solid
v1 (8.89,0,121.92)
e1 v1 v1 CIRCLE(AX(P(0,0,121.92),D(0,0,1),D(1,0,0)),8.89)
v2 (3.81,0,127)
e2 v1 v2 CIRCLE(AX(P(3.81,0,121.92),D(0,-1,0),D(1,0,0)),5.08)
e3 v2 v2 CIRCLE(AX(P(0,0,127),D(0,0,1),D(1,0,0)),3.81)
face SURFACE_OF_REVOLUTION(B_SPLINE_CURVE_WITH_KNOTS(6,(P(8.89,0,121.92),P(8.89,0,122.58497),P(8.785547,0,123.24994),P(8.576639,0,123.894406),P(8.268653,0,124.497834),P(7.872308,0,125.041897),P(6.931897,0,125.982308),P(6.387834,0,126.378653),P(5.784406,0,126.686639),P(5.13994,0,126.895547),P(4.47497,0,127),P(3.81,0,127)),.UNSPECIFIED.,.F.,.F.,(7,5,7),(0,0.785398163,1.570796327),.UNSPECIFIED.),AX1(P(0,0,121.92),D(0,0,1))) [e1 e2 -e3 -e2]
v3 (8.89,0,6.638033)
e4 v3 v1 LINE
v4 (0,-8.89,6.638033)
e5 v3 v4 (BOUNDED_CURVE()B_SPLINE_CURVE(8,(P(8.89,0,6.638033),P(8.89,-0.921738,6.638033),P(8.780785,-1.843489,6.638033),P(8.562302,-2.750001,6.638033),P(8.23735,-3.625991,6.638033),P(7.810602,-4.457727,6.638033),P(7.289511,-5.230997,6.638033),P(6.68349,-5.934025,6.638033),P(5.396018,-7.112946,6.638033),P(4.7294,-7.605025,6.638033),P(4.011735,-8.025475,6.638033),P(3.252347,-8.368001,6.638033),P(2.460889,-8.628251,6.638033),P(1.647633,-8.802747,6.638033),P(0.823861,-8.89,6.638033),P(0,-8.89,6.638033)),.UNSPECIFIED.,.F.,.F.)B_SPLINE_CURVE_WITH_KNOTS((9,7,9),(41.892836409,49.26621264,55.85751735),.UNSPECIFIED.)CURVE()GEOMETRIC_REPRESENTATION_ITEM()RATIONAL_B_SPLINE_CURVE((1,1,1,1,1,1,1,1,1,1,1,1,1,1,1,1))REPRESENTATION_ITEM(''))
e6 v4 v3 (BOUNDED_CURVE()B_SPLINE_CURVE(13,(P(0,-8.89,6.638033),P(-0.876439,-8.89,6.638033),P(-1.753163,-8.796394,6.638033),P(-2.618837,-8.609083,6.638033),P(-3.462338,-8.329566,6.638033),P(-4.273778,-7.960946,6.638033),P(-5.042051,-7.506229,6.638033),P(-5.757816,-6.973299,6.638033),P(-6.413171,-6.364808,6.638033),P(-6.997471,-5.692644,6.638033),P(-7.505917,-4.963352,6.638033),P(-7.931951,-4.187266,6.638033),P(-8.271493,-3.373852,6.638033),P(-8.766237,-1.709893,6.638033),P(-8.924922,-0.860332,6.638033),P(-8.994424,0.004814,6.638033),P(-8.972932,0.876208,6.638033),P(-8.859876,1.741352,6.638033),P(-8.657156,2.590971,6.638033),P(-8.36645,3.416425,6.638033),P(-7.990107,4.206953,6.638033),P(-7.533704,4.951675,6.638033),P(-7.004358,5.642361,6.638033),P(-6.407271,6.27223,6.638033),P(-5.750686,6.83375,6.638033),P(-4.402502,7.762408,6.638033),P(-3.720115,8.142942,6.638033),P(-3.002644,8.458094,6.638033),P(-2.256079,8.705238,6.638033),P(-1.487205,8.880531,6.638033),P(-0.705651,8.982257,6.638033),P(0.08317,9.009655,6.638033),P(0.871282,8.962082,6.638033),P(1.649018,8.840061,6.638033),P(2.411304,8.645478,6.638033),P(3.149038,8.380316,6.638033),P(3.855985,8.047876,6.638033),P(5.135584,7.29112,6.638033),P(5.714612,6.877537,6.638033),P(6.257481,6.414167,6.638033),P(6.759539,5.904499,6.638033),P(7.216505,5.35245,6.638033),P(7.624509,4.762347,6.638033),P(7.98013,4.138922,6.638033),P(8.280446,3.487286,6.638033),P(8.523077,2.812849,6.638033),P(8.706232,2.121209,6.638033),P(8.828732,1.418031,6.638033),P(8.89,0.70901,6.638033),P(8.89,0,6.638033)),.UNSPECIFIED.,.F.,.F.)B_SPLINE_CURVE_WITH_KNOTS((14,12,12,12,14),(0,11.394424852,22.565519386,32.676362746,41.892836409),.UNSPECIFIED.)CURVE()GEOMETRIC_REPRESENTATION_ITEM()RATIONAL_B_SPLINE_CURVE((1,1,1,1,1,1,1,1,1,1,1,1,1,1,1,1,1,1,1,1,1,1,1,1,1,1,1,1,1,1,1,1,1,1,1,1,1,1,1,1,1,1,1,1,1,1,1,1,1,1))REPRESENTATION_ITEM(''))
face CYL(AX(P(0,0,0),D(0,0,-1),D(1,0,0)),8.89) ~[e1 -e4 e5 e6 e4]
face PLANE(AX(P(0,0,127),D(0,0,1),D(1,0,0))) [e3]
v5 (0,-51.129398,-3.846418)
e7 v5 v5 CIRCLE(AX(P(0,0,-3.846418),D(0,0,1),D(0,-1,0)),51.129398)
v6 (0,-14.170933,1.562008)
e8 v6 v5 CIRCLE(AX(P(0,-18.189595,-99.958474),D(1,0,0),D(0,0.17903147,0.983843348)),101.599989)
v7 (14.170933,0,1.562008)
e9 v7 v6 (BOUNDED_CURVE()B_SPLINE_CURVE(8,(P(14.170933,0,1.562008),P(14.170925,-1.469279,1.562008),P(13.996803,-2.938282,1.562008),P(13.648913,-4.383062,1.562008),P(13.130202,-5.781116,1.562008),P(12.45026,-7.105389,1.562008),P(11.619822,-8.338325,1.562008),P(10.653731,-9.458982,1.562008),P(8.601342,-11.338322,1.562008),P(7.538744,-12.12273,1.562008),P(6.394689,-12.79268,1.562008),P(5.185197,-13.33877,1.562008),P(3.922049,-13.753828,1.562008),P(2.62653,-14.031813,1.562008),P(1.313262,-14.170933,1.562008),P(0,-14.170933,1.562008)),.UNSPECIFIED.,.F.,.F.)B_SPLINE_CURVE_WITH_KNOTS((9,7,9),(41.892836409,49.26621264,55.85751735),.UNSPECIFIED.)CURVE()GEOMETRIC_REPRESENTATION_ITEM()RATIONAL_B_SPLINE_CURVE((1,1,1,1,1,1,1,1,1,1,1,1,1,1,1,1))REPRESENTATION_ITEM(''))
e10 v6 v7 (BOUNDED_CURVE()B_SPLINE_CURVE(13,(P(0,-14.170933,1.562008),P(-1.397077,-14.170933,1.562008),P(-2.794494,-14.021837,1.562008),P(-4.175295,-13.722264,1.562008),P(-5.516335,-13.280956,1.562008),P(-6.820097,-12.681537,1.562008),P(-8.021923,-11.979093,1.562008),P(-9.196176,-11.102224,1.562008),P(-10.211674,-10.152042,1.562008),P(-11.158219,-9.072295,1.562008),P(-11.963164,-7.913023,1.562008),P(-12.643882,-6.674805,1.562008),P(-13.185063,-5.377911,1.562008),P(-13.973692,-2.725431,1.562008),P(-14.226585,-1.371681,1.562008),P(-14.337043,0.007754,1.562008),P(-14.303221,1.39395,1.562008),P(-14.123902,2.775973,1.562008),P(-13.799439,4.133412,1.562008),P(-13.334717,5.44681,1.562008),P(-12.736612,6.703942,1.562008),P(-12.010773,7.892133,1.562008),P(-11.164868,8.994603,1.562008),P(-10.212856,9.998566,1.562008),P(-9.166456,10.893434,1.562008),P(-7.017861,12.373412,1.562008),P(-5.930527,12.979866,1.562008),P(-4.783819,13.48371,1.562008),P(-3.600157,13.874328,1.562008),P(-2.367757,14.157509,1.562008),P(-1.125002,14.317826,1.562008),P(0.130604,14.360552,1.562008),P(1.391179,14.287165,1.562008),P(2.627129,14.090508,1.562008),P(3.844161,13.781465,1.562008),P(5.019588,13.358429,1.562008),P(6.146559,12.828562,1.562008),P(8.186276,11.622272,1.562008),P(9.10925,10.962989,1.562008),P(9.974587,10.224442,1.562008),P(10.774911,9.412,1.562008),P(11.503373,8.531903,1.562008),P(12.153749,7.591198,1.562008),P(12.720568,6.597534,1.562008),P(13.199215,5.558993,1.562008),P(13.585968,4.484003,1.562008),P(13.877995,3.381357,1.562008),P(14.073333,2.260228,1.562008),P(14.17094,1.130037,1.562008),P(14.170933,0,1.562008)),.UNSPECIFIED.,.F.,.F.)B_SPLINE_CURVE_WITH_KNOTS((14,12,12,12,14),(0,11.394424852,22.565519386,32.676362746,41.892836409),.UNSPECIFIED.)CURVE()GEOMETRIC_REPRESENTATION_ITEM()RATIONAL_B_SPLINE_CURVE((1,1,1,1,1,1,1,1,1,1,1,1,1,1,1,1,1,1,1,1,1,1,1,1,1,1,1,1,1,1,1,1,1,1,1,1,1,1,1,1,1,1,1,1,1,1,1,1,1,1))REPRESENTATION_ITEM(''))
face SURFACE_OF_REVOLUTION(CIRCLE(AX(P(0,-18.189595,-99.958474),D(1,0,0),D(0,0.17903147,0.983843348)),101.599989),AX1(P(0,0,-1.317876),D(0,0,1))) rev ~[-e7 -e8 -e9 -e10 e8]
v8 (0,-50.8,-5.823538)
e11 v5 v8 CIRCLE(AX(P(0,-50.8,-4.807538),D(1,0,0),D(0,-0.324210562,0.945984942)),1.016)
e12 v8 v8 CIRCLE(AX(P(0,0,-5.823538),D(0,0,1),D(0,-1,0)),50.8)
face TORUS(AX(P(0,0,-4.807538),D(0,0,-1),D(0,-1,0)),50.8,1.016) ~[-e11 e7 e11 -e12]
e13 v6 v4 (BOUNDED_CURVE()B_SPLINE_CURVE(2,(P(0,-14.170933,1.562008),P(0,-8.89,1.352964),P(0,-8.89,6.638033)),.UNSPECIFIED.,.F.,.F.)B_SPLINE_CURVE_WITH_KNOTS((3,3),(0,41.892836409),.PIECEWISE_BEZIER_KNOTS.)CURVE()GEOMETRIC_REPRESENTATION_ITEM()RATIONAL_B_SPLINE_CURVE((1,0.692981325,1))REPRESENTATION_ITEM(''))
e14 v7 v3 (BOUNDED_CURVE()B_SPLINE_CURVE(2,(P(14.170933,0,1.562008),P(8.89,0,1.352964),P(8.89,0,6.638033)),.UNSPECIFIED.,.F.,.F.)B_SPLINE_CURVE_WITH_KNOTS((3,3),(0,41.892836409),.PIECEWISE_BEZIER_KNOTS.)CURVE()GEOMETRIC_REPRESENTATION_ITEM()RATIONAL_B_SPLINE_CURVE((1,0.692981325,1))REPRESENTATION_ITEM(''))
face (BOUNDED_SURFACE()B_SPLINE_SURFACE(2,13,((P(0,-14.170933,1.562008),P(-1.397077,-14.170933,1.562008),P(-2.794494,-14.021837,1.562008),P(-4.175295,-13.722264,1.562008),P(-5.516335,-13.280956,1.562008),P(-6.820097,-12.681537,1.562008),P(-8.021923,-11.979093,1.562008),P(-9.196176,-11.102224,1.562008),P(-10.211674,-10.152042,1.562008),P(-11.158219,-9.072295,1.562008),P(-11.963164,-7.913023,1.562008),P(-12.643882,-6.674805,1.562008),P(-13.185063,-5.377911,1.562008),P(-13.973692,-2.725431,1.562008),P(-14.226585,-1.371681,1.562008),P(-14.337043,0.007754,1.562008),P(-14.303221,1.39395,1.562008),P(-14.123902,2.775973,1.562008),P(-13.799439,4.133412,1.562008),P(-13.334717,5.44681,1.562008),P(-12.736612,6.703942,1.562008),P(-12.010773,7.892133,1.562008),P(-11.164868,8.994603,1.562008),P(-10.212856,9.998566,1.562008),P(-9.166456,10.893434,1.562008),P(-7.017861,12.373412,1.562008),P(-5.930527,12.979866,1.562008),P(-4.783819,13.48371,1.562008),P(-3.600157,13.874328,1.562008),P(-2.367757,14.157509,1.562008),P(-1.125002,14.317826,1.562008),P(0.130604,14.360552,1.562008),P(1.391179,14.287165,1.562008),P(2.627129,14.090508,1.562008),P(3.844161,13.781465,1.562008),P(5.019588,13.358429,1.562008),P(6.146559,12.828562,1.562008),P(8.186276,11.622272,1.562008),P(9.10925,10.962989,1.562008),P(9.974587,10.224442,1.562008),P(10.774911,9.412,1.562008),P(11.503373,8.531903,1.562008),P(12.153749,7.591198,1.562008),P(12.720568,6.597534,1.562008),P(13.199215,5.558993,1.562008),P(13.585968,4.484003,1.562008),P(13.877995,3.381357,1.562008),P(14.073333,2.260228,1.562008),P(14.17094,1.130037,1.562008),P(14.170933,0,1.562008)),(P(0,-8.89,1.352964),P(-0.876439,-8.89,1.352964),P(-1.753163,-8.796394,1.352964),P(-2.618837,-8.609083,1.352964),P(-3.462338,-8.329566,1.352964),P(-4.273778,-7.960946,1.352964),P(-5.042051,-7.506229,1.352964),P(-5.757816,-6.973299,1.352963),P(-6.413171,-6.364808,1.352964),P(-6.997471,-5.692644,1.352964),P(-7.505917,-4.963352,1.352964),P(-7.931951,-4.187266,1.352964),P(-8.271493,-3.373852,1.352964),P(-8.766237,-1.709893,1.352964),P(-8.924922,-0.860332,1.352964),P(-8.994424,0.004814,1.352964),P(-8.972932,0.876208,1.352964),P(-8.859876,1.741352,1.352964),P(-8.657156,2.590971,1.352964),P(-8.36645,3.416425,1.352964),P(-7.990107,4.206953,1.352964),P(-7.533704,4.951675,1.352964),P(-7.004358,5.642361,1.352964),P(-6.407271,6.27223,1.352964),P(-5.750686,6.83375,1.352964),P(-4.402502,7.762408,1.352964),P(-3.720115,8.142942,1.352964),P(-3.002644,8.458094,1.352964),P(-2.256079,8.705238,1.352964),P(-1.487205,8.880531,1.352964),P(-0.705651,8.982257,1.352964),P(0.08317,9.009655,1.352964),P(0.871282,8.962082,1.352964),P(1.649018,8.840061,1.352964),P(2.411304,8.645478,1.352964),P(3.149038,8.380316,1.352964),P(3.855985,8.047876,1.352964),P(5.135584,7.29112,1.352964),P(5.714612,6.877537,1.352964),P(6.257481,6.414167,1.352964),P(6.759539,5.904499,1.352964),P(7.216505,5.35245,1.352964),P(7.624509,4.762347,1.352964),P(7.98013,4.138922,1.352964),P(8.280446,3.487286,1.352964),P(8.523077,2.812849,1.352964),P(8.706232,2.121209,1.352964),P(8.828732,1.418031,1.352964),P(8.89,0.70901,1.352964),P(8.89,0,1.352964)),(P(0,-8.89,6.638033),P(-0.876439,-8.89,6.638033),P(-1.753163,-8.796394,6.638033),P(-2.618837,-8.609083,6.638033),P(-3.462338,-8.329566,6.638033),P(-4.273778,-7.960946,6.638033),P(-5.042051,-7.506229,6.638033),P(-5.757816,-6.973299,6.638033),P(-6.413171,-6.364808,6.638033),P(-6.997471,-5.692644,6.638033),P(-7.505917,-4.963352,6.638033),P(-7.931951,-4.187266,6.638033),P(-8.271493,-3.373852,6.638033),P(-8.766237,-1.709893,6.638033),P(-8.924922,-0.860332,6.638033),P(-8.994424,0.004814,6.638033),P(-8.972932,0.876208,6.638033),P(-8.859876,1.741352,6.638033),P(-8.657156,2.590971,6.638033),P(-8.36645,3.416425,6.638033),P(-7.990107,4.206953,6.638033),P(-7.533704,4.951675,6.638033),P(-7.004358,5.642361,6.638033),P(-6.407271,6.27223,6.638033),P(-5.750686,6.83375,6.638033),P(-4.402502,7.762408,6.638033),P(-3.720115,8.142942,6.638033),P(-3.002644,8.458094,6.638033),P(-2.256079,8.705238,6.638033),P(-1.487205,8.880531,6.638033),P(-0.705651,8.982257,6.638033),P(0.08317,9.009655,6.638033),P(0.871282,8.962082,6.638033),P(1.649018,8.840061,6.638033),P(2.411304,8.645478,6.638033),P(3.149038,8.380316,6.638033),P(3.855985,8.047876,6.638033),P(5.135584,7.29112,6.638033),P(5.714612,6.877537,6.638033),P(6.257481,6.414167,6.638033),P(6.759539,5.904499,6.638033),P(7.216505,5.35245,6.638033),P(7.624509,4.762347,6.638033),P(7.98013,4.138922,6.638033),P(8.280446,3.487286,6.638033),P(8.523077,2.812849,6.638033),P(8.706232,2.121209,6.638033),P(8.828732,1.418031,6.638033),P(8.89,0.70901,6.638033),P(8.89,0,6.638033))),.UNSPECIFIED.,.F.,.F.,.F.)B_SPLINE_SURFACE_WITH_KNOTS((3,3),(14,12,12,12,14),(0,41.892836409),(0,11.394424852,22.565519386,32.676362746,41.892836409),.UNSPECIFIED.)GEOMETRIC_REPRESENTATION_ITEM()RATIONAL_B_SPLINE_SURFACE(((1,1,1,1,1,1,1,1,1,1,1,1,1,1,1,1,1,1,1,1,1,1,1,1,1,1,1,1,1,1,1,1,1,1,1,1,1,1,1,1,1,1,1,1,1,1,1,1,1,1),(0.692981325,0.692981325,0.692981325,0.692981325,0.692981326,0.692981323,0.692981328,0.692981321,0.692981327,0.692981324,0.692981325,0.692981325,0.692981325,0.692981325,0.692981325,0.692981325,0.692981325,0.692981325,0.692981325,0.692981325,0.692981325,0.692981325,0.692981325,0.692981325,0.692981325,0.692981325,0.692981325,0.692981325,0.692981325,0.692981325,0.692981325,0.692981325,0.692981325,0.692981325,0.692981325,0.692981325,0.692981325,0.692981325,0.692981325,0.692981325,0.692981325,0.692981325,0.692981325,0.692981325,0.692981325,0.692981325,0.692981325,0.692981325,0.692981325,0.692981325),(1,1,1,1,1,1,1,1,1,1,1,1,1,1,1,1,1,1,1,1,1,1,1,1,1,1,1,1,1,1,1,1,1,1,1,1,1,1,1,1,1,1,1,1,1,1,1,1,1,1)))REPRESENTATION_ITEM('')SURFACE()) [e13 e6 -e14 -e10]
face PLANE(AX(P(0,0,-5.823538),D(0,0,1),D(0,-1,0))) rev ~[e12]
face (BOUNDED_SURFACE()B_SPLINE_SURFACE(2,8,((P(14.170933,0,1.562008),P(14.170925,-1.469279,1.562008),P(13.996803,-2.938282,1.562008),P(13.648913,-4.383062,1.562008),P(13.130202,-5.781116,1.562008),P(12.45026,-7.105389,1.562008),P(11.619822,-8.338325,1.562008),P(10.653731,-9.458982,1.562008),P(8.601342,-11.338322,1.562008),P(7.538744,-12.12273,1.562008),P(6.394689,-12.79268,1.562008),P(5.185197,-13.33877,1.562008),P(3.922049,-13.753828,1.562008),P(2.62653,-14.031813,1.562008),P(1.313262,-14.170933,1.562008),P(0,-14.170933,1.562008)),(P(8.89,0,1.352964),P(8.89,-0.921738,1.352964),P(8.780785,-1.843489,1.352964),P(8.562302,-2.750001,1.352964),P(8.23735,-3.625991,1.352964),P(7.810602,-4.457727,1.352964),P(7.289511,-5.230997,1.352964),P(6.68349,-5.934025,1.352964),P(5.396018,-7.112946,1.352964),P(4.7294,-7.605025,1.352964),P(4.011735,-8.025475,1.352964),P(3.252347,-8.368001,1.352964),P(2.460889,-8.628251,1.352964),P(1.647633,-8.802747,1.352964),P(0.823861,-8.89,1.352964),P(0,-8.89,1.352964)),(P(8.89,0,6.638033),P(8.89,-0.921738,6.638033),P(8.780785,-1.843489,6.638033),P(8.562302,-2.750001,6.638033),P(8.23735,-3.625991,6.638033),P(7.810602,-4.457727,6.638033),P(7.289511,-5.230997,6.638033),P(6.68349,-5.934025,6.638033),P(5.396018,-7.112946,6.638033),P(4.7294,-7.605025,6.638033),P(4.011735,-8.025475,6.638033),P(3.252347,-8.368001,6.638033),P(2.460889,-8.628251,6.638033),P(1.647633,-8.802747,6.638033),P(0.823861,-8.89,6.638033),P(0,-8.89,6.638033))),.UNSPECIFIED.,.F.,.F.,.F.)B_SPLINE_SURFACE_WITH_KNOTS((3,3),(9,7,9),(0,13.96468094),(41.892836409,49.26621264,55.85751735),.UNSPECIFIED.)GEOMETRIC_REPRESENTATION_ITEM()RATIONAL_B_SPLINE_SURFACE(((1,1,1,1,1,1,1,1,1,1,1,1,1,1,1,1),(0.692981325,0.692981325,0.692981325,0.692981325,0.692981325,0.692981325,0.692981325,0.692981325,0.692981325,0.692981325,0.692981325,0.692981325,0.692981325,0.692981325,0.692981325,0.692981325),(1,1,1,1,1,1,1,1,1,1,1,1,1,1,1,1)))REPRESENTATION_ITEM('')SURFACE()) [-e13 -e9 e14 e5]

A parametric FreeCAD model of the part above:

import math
import FreeCAD as App
import Part
import Sketcher

V = App.Vector
Q = App.Units.Quantity


def edges_at(feature, points):
    """Names of the edges that pass closest to the given points."""
    edges = feature.Shape.Edges
    near = lambda p: min(range(len(edges)), key=lambda i: edges[i].distToShape(Part.Vertex(*p))[0])
    return sorted({f"Edge{near(p) + 1}" for p in points})

doc = App.newDocument("Part")
params = doc.addObject("Spreadsheet::Sheet", "Params")
for row, (alias, value) in enumerate([
    ("sketch1_diameter", "0.7 in"),
    ("pad1_length", "5 in"),
    ("sketch2_width", "2 in"),
    ("sketch2_radius", "0.04 in"),
    ("revolution_angle", "360 deg"),
    ("fillet_radius", "0.2 in"),
], start=1):
    params.set(f"A{row}", alias)
    params.set(f"B{row}", "=" + value)
    params.setAlias(f"B{row}", alias)

body = doc.addObject("PartDesign::Body", "Body")

# Sketch on XY plane
sketch1 = body.newObject("Sketcher::SketchObject", "Sketch")
sketch1.AttachmentSupport = (doc.getObject("XY_Plane"), [""])
sketch1.MapMode = "FlatFace"
sketch1.addGeometry(Part.Circle(V(0, 0, 0), V(0, 0, 1), 8.89), False)
sketch1.addConstraint(Sketcher.Constraint("Coincident", 0, 3, -1, 1))
sketch1.addConstraint(Sketcher.Constraint("Diameter", 0, Q("0.7 in")))
sketch1.setExpression("Constraints[1]", "Params.sketch1_diameter")
pad1 = body.newObject("PartDesign::Pad", "Pad")
pad1.Profile = sketch1
pad1.setExpression("Length", "Params.pad1_length")

# Sketch on YZ plane
sketch2 = body.newObject("Sketcher::SketchObject", "Sketch001")
sketch2.AttachmentSupport = (doc.getObject("YZ_Plane"), [""])
sketch2.MapMode = "FlatFace"
sketch2.addGeometry(Part.LineSegment(V(-50.8, -5.823538, 0), V(0, -5.823538, 0)), False)
sketch2.addGeometry(Part.LineSegment(V(0, -5.823538, 0), V(0, 0, 0)), False)
sketch2.addGeometry(Part.ArcOfCircle(Part.Circle(V(-18.189595, -99.958474, 0), V(0, 0, 1), 101.599989), math.radians(79.686649), math.radians(108.917762)), False)
sketch2.addGeometry(Part.ArcOfCircle(Part.Circle(V(-50.8, -4.807538, 0), V(0, 0, 1), 1.016), math.radians(108.917754), math.radians(270.00001)), False)
sketch2.addConstraint(Sketcher.Constraint("Coincident", 0, 2, 1, 1))
sketch2.addConstraint(Sketcher.Constraint("Coincident", 1, 2, 2, 1))
sketch2.addConstraint(Sketcher.Constraint("Tangent", 2, 2, 3, 1))
sketch2.addConstraint(Sketcher.Constraint("Tangent", 3, 2, 0, 1))
sketch2.addConstraint(Sketcher.Constraint("Horizontal", 0))
sketch2.addConstraint(Sketcher.Constraint("Vertical", 1))
sketch2.addConstraint(Sketcher.Constraint("Coincident", 1, 2, -1, 1))
sketch2.addConstraint(Sketcher.Constraint("DistanceX", 0, 1, 0, 2, Q("2 in")))
sketch2.addConstraint(Sketcher.Constraint("Radius", 3, Q("0.04 in")))
sketch2.addConstraint(Sketcher.Constraint("Radius", 2, 101.599989))
sketch2.addConstraint(Sketcher.Constraint("DistanceY", 2, 3, 3, 3, Q("3.7460998 in")))
sketch2.setExpression("Constraints[7]", "Params.sketch2_width")
sketch2.setExpression("Constraints[8]", "Params.sketch2_radius")
revolution = body.newObject("PartDesign::Revolution", "Revolution")
revolution.Profile = sketch2
revolution.ReferenceAxis = (sketch2, ["V_Axis"])
revolution.setExpression("Angle", "Params.revolution_angle")
doc.recompute()

fillet = body.newObject("PartDesign::Fillet", "Fillet")
fillet.Base = (revolution, edges_at(revolution, [(-8.89, 0, 127), (-6.286, 6.286, 1.215), (6.286, -6.286, 1.215)]))
fillet.setExpression("Radius", "Params.fillet_radius")

doc.recompute()
